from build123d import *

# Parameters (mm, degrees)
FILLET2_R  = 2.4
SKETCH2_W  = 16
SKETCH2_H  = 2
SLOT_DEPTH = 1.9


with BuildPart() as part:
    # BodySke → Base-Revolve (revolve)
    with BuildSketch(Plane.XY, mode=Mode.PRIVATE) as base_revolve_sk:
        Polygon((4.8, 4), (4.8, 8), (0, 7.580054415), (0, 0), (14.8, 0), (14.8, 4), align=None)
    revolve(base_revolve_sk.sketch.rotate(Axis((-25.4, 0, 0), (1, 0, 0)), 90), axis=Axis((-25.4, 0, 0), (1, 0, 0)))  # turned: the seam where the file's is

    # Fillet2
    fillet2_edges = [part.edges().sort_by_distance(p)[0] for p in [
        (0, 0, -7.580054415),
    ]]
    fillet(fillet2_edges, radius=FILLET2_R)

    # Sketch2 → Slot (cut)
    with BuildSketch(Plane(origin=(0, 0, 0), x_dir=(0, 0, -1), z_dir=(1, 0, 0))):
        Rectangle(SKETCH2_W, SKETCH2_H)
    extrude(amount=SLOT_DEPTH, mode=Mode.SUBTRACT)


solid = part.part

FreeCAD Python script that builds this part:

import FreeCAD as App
import Part
import Sketcher
Q = App.Units.Quantity


def edges_at(feature, points):
    """Names of the edges that pass closest to the given points."""
    edges = feature.Shape.Edges
    near = lambda p: min(range(len(edges)), key=lambda i: edges[i].distToShape(Part.Vertex(*p))[0])
    return sorted({f"Edge{near(p) + 1}" for p in points})


def add_polygon(sketch, points):
    """Adds a closed chain of lines whose ends are joined by coincident constraints."""
    first, n = sketch.GeometryCount, len(points)
    for a, b in zip(points, points[1:] + points[:1]):
        sketch.addGeometry(Part.LineSegment(App.Vector(*a, 0), App.Vector(*b, 0)), False)
    for i in range(n):
        sketch.addConstraint(Sketcher.Constraint("Coincident", first + i, 2, first + (i + 1) % n, 1))

doc = App.newDocument("Part")
body = doc.addObject("PartDesign::Body", "Body")

# Sketch on XY plane
sketch1 = doc.addObject("Sketcher::SketchObject", "Sketch")
body.addObject(sketch1)
sketch1.AttachmentSupport = (doc.XY_Plane, [""])
sketch1.MapMode = "FlatFace"
add_polygon(sketch1, [(4.8, 4), (4.8, 8), (0, 7.6), (0, 0), (14.8, 0), (14.8, 4)])  # lines 0-5
sketch1.addConstraint([
    Sketcher.Constraint("Vertical", 0),
    Sketcher.Constraint("Vertical", 2),
    Sketcher.Constraint("Horizontal", 3),
    Sketcher.Constraint("Vertical", 4),
    Sketcher.Constraint("Horizontal", 5),
    Sketcher.Constraint("Coincident", 2, 2, -1, 1),
    Sketcher.Constraint("Equal", 0, 4),
    Sketcher.Constraint("DistanceX", 5, 2, 5, 1, Q("10 mm")),
    Sketcher.Constraint("DistanceY", 0, 1, 0, 2, Q("4 mm")),
    Sketcher.Constraint("Angle", 1, Q("-175 deg")),
    Sketcher.Constraint("DistanceX", 3, 1, 3, 2, Q("14.8 mm")),
])
revolution = doc.addObject("PartDesign::Revolution", "Revolution")
body.addObject(revolution)
revolution.Profile = sketch1
revolution.ReferenceAxis = (sketch1, ["H_Axis"])
revolution.Angle = 360
doc.recompute()

fillet = doc.addObject("PartDesign::Fillet", "Fillet")
body.addObject(fillet)
fillet.Base = (revolution, edges_at(revolution, [(0, 0, -7.58)]))
fillet.Radius = 2.4

# Sketch on YZ plane
sketch2 = doc.addObject("Sketcher::SketchObject", "Sketch001")
body.addObject(sketch2)
sketch2.AttachmentSupport = (doc.YZ_Plane, [""])
sketch2.MapMode = "FlatFace"
add_polygon(sketch2, [(1, 8), (-1, 8), (-1, -8), (1, -8)])  # lines 0-3
sketch2.addConstraint([
    Sketcher.Constraint("Horizontal", 0),
    Sketcher.Constraint("Vertical", 1),
    Sketcher.Constraint("Horizontal", 2),
    Sketcher.Constraint("Vertical", 3),
    Sketcher.Constraint("Symmetric", 0, 2, 2, 2, -1, 1),
    Sketcher.Constraint("DistanceX", 0, 2, 0, 1, Q("2 mm")),
    Sketcher.Constraint("DistanceY", 1, 2, 1, 1, Q("16 mm")),
])
pocket1 = doc.addObject("PartDesign::Pocket", "Pocket")
body.addObject(pocket1)
pocket1.Profile = sketch2
pocket1.Length = 1.9
pocket1.Reversed = True

doc.recompute()
